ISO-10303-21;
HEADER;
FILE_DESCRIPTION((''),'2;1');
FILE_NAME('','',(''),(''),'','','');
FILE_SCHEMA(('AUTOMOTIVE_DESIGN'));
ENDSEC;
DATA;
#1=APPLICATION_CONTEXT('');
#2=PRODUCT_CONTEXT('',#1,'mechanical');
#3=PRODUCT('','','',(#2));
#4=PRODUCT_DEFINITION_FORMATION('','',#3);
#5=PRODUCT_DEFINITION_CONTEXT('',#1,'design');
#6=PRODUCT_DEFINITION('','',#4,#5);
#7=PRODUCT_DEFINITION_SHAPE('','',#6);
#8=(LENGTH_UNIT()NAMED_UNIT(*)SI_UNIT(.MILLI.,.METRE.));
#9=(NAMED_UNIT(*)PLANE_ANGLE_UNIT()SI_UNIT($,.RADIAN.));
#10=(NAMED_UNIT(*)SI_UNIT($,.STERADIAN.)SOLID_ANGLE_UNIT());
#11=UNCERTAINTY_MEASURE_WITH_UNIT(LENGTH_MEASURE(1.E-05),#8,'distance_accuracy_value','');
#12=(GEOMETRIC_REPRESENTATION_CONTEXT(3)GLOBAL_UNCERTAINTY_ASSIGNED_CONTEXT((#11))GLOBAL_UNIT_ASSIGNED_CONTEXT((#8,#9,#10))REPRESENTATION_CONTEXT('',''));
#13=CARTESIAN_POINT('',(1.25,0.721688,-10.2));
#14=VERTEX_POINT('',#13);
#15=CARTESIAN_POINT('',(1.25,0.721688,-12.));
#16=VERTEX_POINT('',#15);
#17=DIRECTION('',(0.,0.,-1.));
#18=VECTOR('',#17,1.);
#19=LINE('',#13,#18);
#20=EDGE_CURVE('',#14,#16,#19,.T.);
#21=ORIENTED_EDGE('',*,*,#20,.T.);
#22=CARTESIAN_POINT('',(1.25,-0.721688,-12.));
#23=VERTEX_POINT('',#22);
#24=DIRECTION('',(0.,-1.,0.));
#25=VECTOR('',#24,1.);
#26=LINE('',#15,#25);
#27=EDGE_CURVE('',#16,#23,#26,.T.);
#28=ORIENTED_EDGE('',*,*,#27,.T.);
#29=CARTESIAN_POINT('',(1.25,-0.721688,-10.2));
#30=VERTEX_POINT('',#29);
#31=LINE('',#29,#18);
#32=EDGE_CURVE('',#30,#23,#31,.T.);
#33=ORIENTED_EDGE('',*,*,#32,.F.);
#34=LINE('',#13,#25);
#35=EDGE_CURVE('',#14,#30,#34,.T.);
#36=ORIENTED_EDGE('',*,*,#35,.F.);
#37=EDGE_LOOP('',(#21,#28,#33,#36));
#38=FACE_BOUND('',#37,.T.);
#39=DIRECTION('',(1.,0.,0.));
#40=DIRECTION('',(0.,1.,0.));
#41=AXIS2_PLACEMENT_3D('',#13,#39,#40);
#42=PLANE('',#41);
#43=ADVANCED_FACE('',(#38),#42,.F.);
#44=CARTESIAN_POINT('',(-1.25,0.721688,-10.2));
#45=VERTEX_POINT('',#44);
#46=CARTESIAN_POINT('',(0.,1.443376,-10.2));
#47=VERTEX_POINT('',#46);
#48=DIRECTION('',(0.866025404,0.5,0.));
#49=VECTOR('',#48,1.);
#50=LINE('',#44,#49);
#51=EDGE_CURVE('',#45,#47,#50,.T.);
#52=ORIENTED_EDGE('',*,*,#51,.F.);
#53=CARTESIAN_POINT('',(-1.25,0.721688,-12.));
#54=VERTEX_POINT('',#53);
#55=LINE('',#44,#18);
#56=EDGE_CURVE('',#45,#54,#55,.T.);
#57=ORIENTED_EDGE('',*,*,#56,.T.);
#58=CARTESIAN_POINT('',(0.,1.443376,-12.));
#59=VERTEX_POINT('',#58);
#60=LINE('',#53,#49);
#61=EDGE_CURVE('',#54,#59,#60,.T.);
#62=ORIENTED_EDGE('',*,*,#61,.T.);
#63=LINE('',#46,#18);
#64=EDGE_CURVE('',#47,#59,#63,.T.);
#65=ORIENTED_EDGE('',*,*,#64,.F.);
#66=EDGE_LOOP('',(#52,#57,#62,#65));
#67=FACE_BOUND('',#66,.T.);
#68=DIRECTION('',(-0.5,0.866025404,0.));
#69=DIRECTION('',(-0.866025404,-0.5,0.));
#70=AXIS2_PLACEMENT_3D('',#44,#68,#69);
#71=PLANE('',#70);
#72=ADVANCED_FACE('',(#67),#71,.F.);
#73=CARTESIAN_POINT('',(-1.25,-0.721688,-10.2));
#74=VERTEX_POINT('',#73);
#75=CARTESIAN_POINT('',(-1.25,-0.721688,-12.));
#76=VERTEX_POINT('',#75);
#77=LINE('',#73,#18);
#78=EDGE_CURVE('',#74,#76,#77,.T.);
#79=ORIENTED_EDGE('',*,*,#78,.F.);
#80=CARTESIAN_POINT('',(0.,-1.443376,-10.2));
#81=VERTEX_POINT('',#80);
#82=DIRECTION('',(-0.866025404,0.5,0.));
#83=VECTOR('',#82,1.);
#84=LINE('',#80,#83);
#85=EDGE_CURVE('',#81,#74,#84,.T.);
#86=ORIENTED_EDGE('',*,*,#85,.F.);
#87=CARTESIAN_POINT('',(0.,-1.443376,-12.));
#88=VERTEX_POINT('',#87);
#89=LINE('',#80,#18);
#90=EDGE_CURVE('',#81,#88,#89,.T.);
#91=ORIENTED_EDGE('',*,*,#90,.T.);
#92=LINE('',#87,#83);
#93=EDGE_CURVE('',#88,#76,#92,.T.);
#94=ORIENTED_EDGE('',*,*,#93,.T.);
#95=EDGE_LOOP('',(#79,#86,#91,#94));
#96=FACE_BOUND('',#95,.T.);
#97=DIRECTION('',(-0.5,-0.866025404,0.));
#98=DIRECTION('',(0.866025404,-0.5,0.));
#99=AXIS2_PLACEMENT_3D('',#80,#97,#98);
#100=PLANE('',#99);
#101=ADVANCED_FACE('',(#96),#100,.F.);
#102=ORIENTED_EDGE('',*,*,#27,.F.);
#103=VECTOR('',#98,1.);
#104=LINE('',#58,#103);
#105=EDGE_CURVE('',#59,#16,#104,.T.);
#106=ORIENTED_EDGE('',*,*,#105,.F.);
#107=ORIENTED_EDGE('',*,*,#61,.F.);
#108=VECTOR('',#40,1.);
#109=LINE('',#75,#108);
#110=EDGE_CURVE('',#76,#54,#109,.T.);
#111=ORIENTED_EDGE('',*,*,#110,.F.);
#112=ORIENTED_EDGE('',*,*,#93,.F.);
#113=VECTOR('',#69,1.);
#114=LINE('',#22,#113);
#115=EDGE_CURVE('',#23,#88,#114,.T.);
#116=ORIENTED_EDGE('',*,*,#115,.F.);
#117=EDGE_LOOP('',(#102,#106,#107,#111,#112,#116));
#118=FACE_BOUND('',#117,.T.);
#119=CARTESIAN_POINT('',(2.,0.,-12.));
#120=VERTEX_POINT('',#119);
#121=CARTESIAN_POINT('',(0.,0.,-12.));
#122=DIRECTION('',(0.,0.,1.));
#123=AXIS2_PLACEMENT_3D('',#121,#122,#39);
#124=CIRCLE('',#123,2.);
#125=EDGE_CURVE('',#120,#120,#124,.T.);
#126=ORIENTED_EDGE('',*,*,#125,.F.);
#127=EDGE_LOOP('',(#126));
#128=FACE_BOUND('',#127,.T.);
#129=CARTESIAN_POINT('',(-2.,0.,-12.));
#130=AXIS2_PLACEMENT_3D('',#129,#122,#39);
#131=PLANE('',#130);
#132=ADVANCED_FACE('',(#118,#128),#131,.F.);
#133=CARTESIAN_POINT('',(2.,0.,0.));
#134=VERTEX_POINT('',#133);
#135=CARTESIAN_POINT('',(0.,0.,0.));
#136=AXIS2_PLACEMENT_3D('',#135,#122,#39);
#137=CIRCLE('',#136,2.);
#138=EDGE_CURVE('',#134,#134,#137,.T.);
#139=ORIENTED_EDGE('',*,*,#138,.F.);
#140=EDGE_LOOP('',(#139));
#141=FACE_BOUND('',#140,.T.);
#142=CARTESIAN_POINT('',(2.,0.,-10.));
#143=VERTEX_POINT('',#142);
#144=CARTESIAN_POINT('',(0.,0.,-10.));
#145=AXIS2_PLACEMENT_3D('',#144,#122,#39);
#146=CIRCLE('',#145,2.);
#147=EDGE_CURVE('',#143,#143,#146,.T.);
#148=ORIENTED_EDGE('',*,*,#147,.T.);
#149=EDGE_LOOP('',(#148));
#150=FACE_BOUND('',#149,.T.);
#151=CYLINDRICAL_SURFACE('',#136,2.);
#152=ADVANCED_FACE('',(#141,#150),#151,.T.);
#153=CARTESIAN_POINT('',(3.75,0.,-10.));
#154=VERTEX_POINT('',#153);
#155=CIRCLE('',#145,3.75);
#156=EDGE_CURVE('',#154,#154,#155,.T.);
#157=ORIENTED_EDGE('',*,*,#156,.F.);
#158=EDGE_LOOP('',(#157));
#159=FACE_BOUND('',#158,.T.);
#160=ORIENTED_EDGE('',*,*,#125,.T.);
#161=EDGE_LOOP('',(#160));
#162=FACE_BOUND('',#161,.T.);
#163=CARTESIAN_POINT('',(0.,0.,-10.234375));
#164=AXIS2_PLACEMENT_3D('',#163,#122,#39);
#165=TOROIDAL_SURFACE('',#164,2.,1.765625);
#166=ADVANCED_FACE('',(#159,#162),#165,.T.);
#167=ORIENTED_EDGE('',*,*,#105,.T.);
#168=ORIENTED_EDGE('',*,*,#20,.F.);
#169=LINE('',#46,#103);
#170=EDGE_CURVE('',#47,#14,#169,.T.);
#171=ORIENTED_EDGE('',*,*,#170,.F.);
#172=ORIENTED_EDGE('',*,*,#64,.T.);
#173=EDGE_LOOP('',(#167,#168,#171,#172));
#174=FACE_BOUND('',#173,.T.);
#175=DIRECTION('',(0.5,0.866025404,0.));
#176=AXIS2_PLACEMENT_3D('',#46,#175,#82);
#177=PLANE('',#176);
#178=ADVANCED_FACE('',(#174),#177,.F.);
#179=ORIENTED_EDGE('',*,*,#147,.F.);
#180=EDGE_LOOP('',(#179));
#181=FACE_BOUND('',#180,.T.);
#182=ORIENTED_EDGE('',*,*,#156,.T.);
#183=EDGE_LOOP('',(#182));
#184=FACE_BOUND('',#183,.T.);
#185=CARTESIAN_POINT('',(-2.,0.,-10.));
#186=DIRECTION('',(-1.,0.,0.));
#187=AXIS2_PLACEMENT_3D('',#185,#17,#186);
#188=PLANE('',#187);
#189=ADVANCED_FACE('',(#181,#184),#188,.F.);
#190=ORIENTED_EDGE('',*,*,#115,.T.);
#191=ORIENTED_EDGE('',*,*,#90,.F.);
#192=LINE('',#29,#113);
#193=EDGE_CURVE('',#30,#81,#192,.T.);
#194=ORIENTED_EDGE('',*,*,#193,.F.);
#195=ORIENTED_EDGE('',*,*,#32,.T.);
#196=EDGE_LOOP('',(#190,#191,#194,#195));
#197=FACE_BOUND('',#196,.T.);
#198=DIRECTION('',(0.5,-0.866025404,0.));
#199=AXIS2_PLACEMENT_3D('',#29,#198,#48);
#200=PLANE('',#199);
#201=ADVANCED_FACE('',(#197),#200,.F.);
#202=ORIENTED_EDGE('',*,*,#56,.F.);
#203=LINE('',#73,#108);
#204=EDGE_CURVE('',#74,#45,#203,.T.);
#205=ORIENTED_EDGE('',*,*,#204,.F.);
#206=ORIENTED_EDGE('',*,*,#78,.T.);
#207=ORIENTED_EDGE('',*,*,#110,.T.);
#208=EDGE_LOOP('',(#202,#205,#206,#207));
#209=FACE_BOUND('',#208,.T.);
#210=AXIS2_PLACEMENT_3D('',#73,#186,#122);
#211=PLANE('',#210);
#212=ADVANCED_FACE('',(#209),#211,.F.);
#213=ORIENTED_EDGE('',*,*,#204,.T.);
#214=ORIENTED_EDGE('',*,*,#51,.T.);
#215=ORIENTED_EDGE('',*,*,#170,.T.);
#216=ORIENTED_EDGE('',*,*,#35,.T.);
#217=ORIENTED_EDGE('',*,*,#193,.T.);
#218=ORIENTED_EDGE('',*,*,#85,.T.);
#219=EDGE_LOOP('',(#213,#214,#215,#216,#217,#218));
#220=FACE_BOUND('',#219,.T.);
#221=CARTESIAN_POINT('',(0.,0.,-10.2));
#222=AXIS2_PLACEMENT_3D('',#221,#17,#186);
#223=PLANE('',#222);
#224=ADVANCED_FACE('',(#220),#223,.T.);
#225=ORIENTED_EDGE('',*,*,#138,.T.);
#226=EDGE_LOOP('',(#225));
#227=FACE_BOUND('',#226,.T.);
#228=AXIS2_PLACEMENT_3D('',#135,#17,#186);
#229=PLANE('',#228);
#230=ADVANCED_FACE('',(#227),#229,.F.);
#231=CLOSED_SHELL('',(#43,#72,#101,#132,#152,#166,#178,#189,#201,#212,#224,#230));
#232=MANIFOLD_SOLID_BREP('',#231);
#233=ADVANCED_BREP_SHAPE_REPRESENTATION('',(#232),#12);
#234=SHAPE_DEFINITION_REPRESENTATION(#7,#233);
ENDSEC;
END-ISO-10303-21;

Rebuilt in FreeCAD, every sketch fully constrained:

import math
import FreeCAD as App
import Part
import Sketcher
Q = App.Units.Quantity

doc = App.newDocument("Part")
body = doc.addObject("PartDesign::Body", "Body")

# Sketch on XZ plane
sketch1 = doc.addObject("Sketcher::SketchObject", "Sketch")
body.addObject(sketch1)
sketch1.AttachmentSupport = (doc.XZ_Plane, [""])
sketch1.MapMode = "FlatFace"
sketch1.addGeometry([
    Part.LineSegment(App.Vector(-2, 0, 0), App.Vector(0, 0, 0)),  # 0
    Part.LineSegment(App.Vector(0, 0, 0), App.Vector(0, -12, 0)),  # 1
    Part.LineSegment(App.Vector(0, -12, 0), App.Vector(-2, -12, 0)),  # 2
    Part.ArcOfCircle(Part.Circle(App.Vector(-2, -10.234375, 0), App.Vector(0, 0, 1), 1.765625), math.radians(172.37185), math.radians(270)),  # 3
    Part.LineSegment(App.Vector(-3.75, -10, 0), App.Vector(-2, -10, 0)),  # 4
    Part.LineSegment(App.Vector(-2, -10, 0), App.Vector(-2, 0, 0)),  # 5
], False)
sketch1.addConstraint([
    Sketcher.Constraint("Coincident", 0, 2, 1, 1),
    Sketcher.Constraint("Coincident", 1, 2, 2, 1),
    Sketcher.Constraint("Tangent", 2, 2, 3, 2),
    Sketcher.Constraint("Coincident", 3, 1, 4, 1),
    Sketcher.Constraint("Coincident", 4, 2, 5, 1),
    Sketcher.Constraint("Coincident", 5, 2, 0, 1),
    Sketcher.Constraint("Horizontal", 0),
    Sketcher.Constraint("Vertical", 1),
    Sketcher.Constraint("Horizontal", 2),
    Sketcher.Constraint("Horizontal", 4),
    Sketcher.Constraint("Vertical", 5),
    Sketcher.Constraint("Coincident", 0, 2, -1, 1),
    Sketcher.Constraint("Vertical", 2, 2, 4, 2),
    Sketcher.Constraint("DistanceX", 0, 1, 0, 2, 2.0),
    Sketcher.Constraint("DistanceY", 1, 2, 1, 1, 12.0),
    Sketcher.Constraint("DistanceY", 5, 1, 5, 2, 10.0),
    Sketcher.Constraint("DistanceX", 4, 1, 4, 2, 1.75),
])
revolution = doc.addObject("PartDesign::Revolution", "Revolution")
body.addObject(revolution)
revolution.Profile = sketch1
revolution.ReferenceAxis = (sketch1, ["V_Axis"])
revolution.Angle = 360

# Sketch on XY plane
sketch2 = doc.addObject("Sketcher::SketchObject", "Sketch001")
body.addObject(sketch2)
sketch2.AttachmentSupport = (doc.XY_Plane, [""])
sketch2.MapMode = "FlatFace"
sketch2.AttachmentOffset = App.Placement(App.Vector(0, 0, -12), App.Rotation())
sketch2.addGeometry([
    Part.LineSegment(App.Vector(0, -1.443376, 0), App.Vector(-1.25, -0.721688, 0)),  # 0
    Part.LineSegment(App.Vector(-1.25, -0.721688, 0), App.Vector(-1.25, 0.721688, 0)),  # 1
    Part.LineSegment(App.Vector(-1.25, 0.721688, 0), App.Vector(0, 1.443376, 0)),  # 2
    Part.LineSegment(App.Vector(0, 1.443376, 0), App.Vector(1.25, 0.721688, 0)),  # 3
    Part.LineSegment(App.Vector(1.25, 0.721688, 0), App.Vector(1.25, -0.721688, 0)),  # 4
    Part.LineSegment(App.Vector(1.25, -0.721688, 0), App.Vector(0, -1.443376, 0)),  # 5
], False)
sketch2.addConstraint([
    Sketcher.Constraint("Coincident", 0, 2, 1, 1),
    Sketcher.Constraint("Coincident", 1, 2, 2, 1),
    Sketcher.Constraint("Coincident", 2, 2, 3, 1),
    Sketcher.Constraint("Coincident", 3, 2, 4, 1),
    Sketcher.Constraint("Coincident", 4, 2, 5, 1),
    Sketcher.Constraint("Coincident", 5, 2, 0, 1),
    Sketcher.Constraint("Vertical", 1),
    Sketcher.Constraint("Vertical", 4),
    Sketcher.Constraint("Symmetric", 0, 2, 3, 2, -1, 1),
    Sketcher.Constraint("Symmetric", 2, 2, 5, 2, -1, 1),
    Sketcher.Constraint("PointOnObject", 2, 2, -2),
    Sketcher.Constraint("Parallel", 2, 5),
    Sketcher.Constraint("Horizontal", 1, 2, 3, 2),
    Sketcher.Constraint("Angle", 0, Q("150 deg")),
    Sketcher.Constraint("DistanceX", 1, 2, 3, 2, 2.5),
    Sketcher.Constraint("DistanceY", 1, 1, 1, 2, 1.443376),
])
pocket1 = doc.addObject("PartDesign::Pocket", "Pocket")
body.addObject(pocket1)
pocket1.Profile = sketch2
pocket1.Length = 1.8
pocket1.Reversed = True

doc.recompute()
